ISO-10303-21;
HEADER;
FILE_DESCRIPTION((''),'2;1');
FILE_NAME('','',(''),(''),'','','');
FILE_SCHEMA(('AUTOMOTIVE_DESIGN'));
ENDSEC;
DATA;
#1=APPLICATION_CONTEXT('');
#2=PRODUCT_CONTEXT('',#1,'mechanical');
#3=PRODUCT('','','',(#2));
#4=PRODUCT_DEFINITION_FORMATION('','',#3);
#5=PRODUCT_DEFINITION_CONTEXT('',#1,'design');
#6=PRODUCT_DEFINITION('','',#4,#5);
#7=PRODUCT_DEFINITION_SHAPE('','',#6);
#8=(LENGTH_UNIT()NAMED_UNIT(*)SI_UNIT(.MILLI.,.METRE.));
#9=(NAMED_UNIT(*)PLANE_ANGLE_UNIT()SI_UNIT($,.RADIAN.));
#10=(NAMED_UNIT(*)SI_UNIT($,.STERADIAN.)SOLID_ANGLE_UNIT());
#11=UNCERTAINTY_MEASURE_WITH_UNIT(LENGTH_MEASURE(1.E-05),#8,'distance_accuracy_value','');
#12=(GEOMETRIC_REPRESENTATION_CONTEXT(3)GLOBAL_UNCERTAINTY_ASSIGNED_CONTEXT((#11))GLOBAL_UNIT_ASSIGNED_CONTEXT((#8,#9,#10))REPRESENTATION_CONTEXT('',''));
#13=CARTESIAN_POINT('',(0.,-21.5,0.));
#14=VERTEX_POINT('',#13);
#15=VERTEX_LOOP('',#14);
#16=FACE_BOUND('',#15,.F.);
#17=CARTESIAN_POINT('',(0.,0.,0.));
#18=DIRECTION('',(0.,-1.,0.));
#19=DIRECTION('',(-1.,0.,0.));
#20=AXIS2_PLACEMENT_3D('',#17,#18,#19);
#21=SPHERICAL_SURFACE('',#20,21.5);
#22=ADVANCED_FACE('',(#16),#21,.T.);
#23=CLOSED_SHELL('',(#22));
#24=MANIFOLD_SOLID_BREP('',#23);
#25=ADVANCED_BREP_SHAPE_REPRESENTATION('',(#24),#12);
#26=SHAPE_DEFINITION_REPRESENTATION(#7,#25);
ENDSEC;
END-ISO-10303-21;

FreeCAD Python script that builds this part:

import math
import FreeCAD as App
import Part
import Sketcher

V = App.Vector

doc = App.newDocument("Part")
body = doc.addObject("PartDesign::Body", "Body")

sketch1 = body.newObject("Sketcher::SketchObject", "Sketch")
sketch1.AttachmentSupport = (doc.getObject("XY_Plane"), [""])
sketch1.MapMode = "FlatFace"
sketch1.addGeometry([
    Part.LineSegment(V(0, -22, 0), V(0, 22, 0)),
    Part.ArcOfCircle(Part.Circle(V(0, 0, 0), V(0, 0, 1), 22), math.radians(90), math.radians(270)),
], False)
sketch1.addConstraint([
    Sketcher.Constraint("Coincident", 0, 1, 1, 2),
    Sketcher.Constraint("Coincident", 1, 1, 0, 2),
    Sketcher.Constraint("Vertical", 0),
    Sketcher.Constraint("Coincident", 1, 3, -1, 1),
    Sketcher.Constraint("PointOnObject", 0, 1, -2),
    Sketcher.Constraint("Radius", 1, 21.5),
])
revolution = body.newObject("PartDesign::Revolution", "Revolution")
revolution.Profile = sketch1
revolution.ReferenceAxis = (sketch1, ["V_Axis"])
revolution.Angle = 360

doc.recompute()
